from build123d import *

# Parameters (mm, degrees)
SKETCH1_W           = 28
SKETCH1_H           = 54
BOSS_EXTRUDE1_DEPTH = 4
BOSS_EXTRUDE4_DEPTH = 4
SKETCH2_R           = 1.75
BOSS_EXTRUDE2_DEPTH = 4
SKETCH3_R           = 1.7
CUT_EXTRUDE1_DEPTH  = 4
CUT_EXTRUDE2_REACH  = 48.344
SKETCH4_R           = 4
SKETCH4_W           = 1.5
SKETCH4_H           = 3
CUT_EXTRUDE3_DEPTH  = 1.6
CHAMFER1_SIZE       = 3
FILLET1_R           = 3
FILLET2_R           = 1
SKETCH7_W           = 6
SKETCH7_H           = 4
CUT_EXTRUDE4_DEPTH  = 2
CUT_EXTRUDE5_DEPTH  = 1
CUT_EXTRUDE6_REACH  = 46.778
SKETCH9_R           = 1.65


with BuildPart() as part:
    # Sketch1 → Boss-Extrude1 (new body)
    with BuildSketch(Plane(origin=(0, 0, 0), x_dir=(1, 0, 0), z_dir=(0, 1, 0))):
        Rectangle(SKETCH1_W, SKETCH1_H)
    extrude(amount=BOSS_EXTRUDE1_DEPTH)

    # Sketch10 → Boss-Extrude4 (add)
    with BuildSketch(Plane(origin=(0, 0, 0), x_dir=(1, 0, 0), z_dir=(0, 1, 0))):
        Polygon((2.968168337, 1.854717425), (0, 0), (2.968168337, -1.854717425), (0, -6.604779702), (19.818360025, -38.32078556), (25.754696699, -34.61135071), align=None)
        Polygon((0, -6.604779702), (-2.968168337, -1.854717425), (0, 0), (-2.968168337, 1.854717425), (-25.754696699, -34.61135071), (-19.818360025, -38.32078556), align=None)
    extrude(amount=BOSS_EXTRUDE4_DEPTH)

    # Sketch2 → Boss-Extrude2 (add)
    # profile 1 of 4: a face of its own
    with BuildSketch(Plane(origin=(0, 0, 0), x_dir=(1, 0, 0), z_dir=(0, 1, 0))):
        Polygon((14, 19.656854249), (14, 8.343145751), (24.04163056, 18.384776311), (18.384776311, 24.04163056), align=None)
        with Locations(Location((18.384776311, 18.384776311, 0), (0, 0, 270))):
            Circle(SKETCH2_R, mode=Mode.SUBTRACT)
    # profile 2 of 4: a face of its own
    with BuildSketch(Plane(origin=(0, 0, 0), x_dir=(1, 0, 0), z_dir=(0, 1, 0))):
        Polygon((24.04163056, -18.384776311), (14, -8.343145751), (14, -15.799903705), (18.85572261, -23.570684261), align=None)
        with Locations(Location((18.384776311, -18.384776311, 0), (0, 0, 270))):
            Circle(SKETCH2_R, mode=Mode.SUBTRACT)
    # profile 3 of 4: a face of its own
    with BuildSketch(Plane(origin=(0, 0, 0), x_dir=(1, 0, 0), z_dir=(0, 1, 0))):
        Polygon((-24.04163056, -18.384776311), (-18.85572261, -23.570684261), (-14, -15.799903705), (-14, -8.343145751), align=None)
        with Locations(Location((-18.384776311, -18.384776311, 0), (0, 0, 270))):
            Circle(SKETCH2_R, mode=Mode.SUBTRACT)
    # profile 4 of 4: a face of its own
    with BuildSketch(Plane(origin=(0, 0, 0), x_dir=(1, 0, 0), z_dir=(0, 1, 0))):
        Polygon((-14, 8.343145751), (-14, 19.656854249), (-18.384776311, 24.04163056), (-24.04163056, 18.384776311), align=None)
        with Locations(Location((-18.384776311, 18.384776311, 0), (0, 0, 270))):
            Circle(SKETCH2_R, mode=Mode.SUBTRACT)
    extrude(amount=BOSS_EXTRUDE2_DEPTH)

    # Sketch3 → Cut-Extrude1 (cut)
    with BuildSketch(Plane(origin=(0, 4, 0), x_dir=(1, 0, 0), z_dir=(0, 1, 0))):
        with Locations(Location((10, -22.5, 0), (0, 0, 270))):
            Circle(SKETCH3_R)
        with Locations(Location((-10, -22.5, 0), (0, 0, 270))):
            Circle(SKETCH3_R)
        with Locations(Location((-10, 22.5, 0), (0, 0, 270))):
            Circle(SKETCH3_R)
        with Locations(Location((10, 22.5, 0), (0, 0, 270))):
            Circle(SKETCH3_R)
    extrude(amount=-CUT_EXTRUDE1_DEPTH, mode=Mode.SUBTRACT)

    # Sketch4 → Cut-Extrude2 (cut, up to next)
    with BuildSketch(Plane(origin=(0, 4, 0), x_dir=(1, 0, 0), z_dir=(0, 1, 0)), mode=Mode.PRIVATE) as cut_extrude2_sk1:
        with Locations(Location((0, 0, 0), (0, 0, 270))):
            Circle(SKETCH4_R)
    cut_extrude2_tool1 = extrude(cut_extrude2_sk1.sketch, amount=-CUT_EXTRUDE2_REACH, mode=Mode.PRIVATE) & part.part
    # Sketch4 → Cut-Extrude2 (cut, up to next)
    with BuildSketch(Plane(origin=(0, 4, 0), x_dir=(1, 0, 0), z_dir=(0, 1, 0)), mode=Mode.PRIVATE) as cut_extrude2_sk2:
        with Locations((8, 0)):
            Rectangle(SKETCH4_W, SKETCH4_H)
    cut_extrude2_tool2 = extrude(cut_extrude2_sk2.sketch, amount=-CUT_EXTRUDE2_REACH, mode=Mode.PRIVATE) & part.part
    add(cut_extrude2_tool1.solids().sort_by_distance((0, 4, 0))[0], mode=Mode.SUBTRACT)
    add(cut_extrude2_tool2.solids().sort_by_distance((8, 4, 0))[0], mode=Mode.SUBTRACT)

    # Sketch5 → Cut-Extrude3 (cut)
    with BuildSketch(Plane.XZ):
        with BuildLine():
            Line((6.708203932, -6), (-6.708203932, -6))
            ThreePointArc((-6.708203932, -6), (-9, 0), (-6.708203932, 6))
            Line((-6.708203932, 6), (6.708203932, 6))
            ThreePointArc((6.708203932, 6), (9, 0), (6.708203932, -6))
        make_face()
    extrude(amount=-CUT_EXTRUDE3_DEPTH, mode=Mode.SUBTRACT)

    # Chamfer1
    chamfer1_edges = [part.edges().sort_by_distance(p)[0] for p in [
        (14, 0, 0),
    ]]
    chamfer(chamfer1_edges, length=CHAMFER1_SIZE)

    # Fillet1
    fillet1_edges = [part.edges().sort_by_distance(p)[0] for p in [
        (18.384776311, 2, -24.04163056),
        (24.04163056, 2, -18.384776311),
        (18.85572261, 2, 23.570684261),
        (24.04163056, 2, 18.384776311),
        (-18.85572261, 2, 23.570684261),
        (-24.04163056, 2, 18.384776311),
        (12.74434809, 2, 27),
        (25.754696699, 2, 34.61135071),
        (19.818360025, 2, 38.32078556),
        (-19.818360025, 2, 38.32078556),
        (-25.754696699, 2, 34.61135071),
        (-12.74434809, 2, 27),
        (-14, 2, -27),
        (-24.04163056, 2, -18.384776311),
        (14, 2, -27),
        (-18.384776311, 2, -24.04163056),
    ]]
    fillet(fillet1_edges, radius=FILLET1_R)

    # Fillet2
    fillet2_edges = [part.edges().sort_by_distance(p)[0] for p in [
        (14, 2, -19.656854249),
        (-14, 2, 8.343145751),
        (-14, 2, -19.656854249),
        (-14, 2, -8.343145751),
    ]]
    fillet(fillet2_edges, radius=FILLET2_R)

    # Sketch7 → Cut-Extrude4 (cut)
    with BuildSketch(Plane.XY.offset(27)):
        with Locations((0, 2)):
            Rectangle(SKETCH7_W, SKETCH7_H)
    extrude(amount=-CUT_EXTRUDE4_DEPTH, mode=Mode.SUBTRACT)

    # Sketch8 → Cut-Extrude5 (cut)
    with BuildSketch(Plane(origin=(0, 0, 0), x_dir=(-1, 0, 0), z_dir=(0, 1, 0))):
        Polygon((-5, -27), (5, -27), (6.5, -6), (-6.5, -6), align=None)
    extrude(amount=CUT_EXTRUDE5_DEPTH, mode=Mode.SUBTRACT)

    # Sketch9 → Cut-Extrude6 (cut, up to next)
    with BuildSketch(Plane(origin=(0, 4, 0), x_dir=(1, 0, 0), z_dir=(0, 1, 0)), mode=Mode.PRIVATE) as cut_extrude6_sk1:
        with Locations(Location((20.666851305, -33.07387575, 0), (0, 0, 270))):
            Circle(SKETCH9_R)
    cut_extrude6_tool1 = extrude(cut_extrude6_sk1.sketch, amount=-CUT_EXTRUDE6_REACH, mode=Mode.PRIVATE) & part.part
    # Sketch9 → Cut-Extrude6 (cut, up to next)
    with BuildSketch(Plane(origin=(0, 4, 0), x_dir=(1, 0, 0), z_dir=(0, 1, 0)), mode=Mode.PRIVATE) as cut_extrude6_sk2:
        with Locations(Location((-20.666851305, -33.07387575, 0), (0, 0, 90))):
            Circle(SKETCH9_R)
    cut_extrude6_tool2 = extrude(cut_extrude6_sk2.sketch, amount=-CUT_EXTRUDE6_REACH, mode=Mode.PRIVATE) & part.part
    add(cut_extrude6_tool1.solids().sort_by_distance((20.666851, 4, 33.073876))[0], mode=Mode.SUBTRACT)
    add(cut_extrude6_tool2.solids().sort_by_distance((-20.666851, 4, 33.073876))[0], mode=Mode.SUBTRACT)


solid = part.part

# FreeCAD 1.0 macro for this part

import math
import FreeCAD as App
import Part
import Sketcher
Q = App.Units.Quantity


def edges_at(feature, points):
    """Names of the edges that pass closest to the given points."""
    edges = feature.Shape.Edges
    near = lambda p: min(range(len(edges)), key=lambda i: edges[i].distToShape(Part.Vertex(*p))[0])
    return sorted({f"Edge{near(p) + 1}" for p in points})


def add_polygon(sketch, points):
    """Adds a closed chain of lines whose ends are joined by coincident constraints."""
    first, n = sketch.GeometryCount, len(points)
    for a, b in zip(points, points[1:] + points[:1]):
        sketch.addGeometry(Part.LineSegment(App.Vector(*a, 0), App.Vector(*b, 0)), False)
    for i in range(n):
        sketch.addConstraint(Sketcher.Constraint("Coincident", first + i, 2, first + (i + 1) % n, 1))

doc = App.newDocument("Part")
body = doc.addObject("PartDesign::Body", "Body")

# Sketch on XZ plane
sketch1 = body.newObject("Sketcher::SketchObject", "Sketch")
sketch1.AttachmentSupport = (doc.getObject("XZ_Plane"), [""])
sketch1.MapMode = "FlatFace"
add_polygon(sketch1, [(-14, -27), (-14, 27), (14, 27), (14, -27)])  # lines 0-3
sketch1.addConstraint([
    Sketcher.Constraint("Vertical", 0),
    Sketcher.Constraint("Horizontal", 1),
    Sketcher.Constraint("Vertical", 2),
    Sketcher.Constraint("Horizontal", 3),
    Sketcher.Constraint("Symmetric", 0, 2, 2, 2, -1, 1),
    Sketcher.Constraint("DistanceX", 1, 1, 1, 2, 28.0),
    Sketcher.Constraint("DistanceY", 0, 1, 0, 2, 54.0),
])
pad1 = body.newObject("PartDesign::Pad", "Pad")
pad1.Profile = sketch1
pad1.Length = 4
pad1.Reversed = True

# Sketch on XZ plane
sketch2 = body.newObject("Sketcher::SketchObject", "Sketch001")
sketch2.AttachmentSupport = (doc.getObject("XZ_Plane"), [""])
sketch2.MapMode = "FlatFace"
add_polygon(sketch2, [(3, -1.9), (0, 0), (3, 1.9), (0, 6.6), (19.8, 38.3), (25.8, 34.6)])  # lines 0-5
add_polygon(sketch2, [(0, 6.6), (-3, 1.9), (0, 0), (-3, -1.9), (-25.8, 34.6), (-19.8, 38.3)])  # lines 6-11
sketch2.addConstraint([
    Sketcher.Constraint("Coincident", 0, 2, -1, 1),
    Sketcher.Constraint("Coincident", 7, 2, -1, 1),
    Sketcher.Constraint("Coincident", 11, 2, 2, 2),
    Sketcher.Constraint("Symmetric", 5, 2, 6, 2, -1, 1),
    Sketcher.Constraint("Symmetric", 1, 2, 8, 2, -1, 1),
    Sketcher.Constraint("Symmetric", 1, 2, 6, 2, -2),
    Sketcher.Constraint("Symmetric", 4, 2, 9, 2, -2),
    Sketcher.Constraint("Symmetric", 3, 2, 10, 2, -2),
    Sketcher.Constraint("PointOnObject", 2, 2, -2),
    Sketcher.Constraint("Perpendicular", 1, 2),
    Sketcher.Constraint("Perpendicular", 0, 3),
    Sketcher.Constraint("Perpendicular", 3, 4),
    Sketcher.Constraint("Perpendicular", 4, 5),
    Sketcher.Constraint("Angle", 0, Q("148 deg")),
    Sketcher.Constraint("Distance", 4, 7.0),
    Sketcher.Constraint("Distance", 5, 43.0),
])
pad2 = body.newObject("PartDesign::Pad", "Pad001")
pad2.Profile = sketch2
pad2.Length = 4
pad2.Reversed = True

# Sketch on XZ plane
sketch3 = body.newObject("Sketcher::SketchObject", "Sketch002")
sketch3.AttachmentSupport = (doc.getObject("XZ_Plane"), [""])
sketch3.MapMode = "FlatFace"
add_polygon(sketch3, [(14, -19.7), (14, -8.3), (24, -18.4), (18.4, -24)])  # lines 0-3
sketch3.addGeometry(Part.Circle(App.Vector(18.4, -18.4, 0), App.Vector(0, 0, 1), 1.8), False)  # 4
add_polygon(sketch3, [(24, 18.4), (14, 8.3), (14, 15.8), (18.9, 23.6)])  # lines 5-8
sketch3.addGeometry(Part.Circle(App.Vector(18.4, 18.4, 0), App.Vector(0, 0, 1), 1.8), False)  # 9
add_polygon(sketch3, [(-24, 18.4), (-18.9, 23.6), (-14, 15.8), (-14, 8.3)])  # lines 10-13
sketch3.addGeometry(Part.Circle(App.Vector(-18.4, 18.4, 0), App.Vector(0, 0, 1), 1.8), False)  # 14
add_polygon(sketch3, [(-14, -8.3), (-14, -19.7), (-18.4, -24), (-24, -18.4)])  # lines 15-18
sketch3.addGeometry(Part.Circle(App.Vector(-18.4, -18.4, 0), App.Vector(0, 0, 1), 1.8), False)  # 19
sketch3.addConstraint([
    Sketcher.Constraint("Vertical", 0),
    Sketcher.Constraint("Vertical", 6),
    Sketcher.Constraint("Vertical", 12),
    Sketcher.Constraint("Vertical", 15),
    Sketcher.Constraint("Equal", 4, 9),
    Sketcher.Constraint("Equal", 9, 14),
    Sketcher.Constraint("Equal", 14, 19),
    Sketcher.Constraint("Symmetric", 4, 3, 14, 3, -1, 1),
    Sketcher.Constraint("Symmetric", 9, 3, 19, 3, -1, 1),
    Sketcher.Constraint("Symmetric", 0, 2, 12, 2, -1, 1),
    Sketcher.Constraint("Symmetric", 1, 2, 13, 2, -1, 1),
    Sketcher.Constraint("Symmetric", 8, 2, 17, 2, -1, 1),
    Sketcher.Constraint("Symmetric", 5, 2, 18, 2, -1, 1),
    Sketcher.Constraint("Symmetric", 9, 3, 14, 3, -2),
    Sketcher.Constraint("Symmetric", 7, 2, 10, 2, -2),
    Sketcher.Constraint("Symmetric", 6, 2, 11, 2, -2),
    Sketcher.Constraint("Symmetric", 8, 2, 13, 2, -2),
    Sketcher.Constraint("Symmetric", 2, 2, 16, 2, -2),
    Sketcher.Constraint("Perpendicular", 1, 2),
    Sketcher.Constraint("Perpendicular", 2, 3),
    Sketcher.Constraint("Perpendicular", 3, 5),
    Sketcher.Constraint("Perpendicular", 5, 8),
    Sketcher.Constraint("Perpendicular", 8, 10),
    Sketcher.Constraint("Perpendicular", 13, 16),
    Sketcher.Constraint("Horizontal", 19, 3, 1, 2),
    Sketcher.Constraint("Vertical", 9, 3, 2, 2),
    Sketcher.Constraint("Diameter", 4, 3.5),
    Sketcher.Constraint("Angle", 7, Q("58 deg")),
    Sketcher.Constraint("Distance", 2, 8.0),
    Sketcher.Constraint("DistanceX", -1, 1, 0, 2, 14.0),
    Sketcher.Constraint("DistanceY", 3, 2, 5, 2, 28.0),
    Sketcher.Constraint("DistanceX", 14, 3, 7, 2, 37.240499),
    Sketcher.Constraint("Distance", 1, 14.20101),
])
pad3 = body.newObject("PartDesign::Pad", "Pad002")
pad3.Profile = sketch3
pad3.Length = 4
pad3.Reversed = True

# Sketch on XZ plane
sketch4 = body.newObject("Sketcher::SketchObject", "Sketch003")
sketch4.AttachmentSupport = (doc.getObject("XZ_Plane"), [""])
sketch4.MapMode = "FlatFace"
sketch4.AttachmentOffset = App.Placement(App.Vector(0, 0, -4), App.Rotation())
sketch4.addGeometry([
    Part.Circle(App.Vector(10, 22.5, 0), App.Vector(0, 0, 1), 1.7),
    Part.Circle(App.Vector(-10, 22.5, 0), App.Vector(0, 0, 1), 1.7),
    Part.Circle(App.Vector(-10, -22.5, 0), App.Vector(0, 0, 1), 1.7),
    Part.Circle(App.Vector(10, -22.5, 0), App.Vector(0, 0, 1), 1.7),
], False)
sketch4.addConstraint([
    Sketcher.Constraint("Equal", 0, 1),
    Sketcher.Constraint("Equal", 1, 2),
    Sketcher.Constraint("Equal", 2, 3),
    Sketcher.Constraint("Symmetric", 0, 3, 2, 3, -1, 1),
    Sketcher.Constraint("Symmetric", 1, 3, 3, 3, -1, 1),
    Sketcher.Constraint("Symmetric", 0, 3, 1, 3, -2),
    Sketcher.Constraint("Diameter", 0, 3.4),
    Sketcher.Constraint("DistanceX", -1, 1, 0, 3, 10.0),
    Sketcher.Constraint("DistanceY", 2, 3, 1, 3, 45.0),
])
pocket1 = body.newObject("PartDesign::Pocket", "Pocket")
pocket1.Profile = sketch4
pocket1.Length = 4
pocket1.Reversed = True

# Sketch on XZ plane
sketch5 = body.newObject("Sketcher::SketchObject", "Sketch004")
sketch5.AttachmentSupport = (doc.getObject("XZ_Plane"), [""])
sketch5.MapMode = "FlatFace"
sketch5.AttachmentOffset = App.Placement(App.Vector(0, 0, -4), App.Rotation())
sketch5.addGeometry(Part.Circle(App.Vector(0, 0, 0), App.Vector(0, 0, 1), 4), False)
sketch5.addConstraint([
    Sketcher.Constraint("Coincident", 0, 3, -1, 1),
    Sketcher.Constraint("Diameter", 0, 8.0),
])
pocket2 = body.newObject("PartDesign::Pocket", "Pocket001")
pocket2.Profile = sketch5
pocket2.Type = "UpToFirst"
pocket2.Reversed = True

# Sketch on XZ plane
sketch6 = body.newObject("Sketcher::SketchObject", "Sketch005")
sketch6.AttachmentSupport = (doc.getObject("XZ_Plane"), [""])
sketch6.MapMode = "FlatFace"
sketch6.AttachmentOffset = App.Placement(App.Vector(0, 0, -4), App.Rotation())
add_polygon(sketch6, [(7.2, -1.5), (7.2, 1.5), (8.8, 1.5), (8.8, -1.5)])  # lines 0-3
sketch6.addConstraint([
    Sketcher.Constraint("Vertical", 0),
    Sketcher.Constraint("Horizontal", 1),
    Sketcher.Constraint("Vertical", 2),
    Sketcher.Constraint("Horizontal", 3),
    Sketcher.Constraint("DistanceY", 0, 1, 0, 2, 3.0),
    Sketcher.Constraint("DistanceX", 1, 1, 1, 2, 1.5),
    Sketcher.Constraint("DistanceY", -1, 1, 0, 2, 1.5),
    Sketcher.Constraint("DistanceX", -1, 1, 0, 2, 7.25),
])
pocket3 = body.newObject("PartDesign::Pocket", "Pocket002")
pocket3.Profile = sketch6
pocket3.Type = "UpToFirst"
pocket3.Reversed = True

# Sketch on XZ plane
sketch7 = body.newObject("Sketcher::SketchObject", "Sketch006")
sketch7.AttachmentSupport = (doc.getObject("XZ_Plane"), [""])
sketch7.MapMode = "FlatFace"
sketch7.addGeometry([
    Part.LineSegment(App.Vector(-7, -6, 0), App.Vector(7, -6, 0)),
    Part.ArcOfCircle(Part.Circle(App.Vector(0, 0, 0), App.Vector(0, 0, 1), 9), math.radians(-42), math.radians(42)),
    Part.LineSegment(App.Vector(7, 6, 0), App.Vector(-7, 6, 0)),
    Part.ArcOfCircle(Part.Circle(App.Vector(0, 0, 0), App.Vector(0, 0, 1), 9), math.radians(138), math.radians(222)),
], False)
sketch7.addConstraint([
    Sketcher.Constraint("Coincident", 0, 2, 1, 1),
    Sketcher.Constraint("Coincident", 1, 2, 2, 1),
    Sketcher.Constraint("Coincident", 2, 2, 3, 1),
    Sketcher.Constraint("Coincident", 3, 2, 0, 1),
    Sketcher.Constraint("Horizontal", 0),
    Sketcher.Constraint("Horizontal", 2),
    Sketcher.Constraint("Coincident", 1, 3, -1, 1),
    Sketcher.Constraint("Coincident", 3, 3, -1, 1),
    Sketcher.Constraint("Equal", 1, 3),
    Sketcher.Constraint("Vertical", 0, 2, 1, 2),
    Sketcher.Constraint("Radius", 1, 9.0),
    Sketcher.Constraint("DistanceY", 0, 2, -1, 1, 6.0),
])
pocket4 = body.newObject("PartDesign::Pocket", "Pocket003")
pocket4.Profile = sketch7
pocket4.Length = 1.6
doc.recompute()

chamfer = body.newObject("PartDesign::Chamfer", "Chamfer")
chamfer.Base = (pocket4, edges_at(pocket4, [(14, 0, 0)]))
chamfer.Size = 3
doc.recompute()

fillet = body.newObject("PartDesign::Fillet", "Fillet")
fillet.Base = (chamfer, edges_at(chamfer, [
    (18.385, 2, -24.042),
    (24.042, 2, -18.385),
    (18.856, 2, 23.571),
    (24.042, 2, 18.385),
    (-18.856, 2, 23.571),
    (-24.042, 2, 18.385),
    (12.744, 2, 27),
    (25.755, 2, 34.611),
    (19.818, 2, 38.321),
    (-19.818, 2, 38.321),
    (-25.755, 2, 34.611),
    (-12.744, 2, 27),
    (-14, 2, -27),
    (-24.042, 2, -18.385),
    (14, 2, -27),
    (-18.385, 2, -24.042),
]))
fillet.Radius = 3
doc.recompute()

fillet2 = body.newObject("PartDesign::Fillet", "Fillet001")
fillet2.Base = (fillet, edges_at(fillet, [
    (14, 2, -19.657),
    (-14, 2, 8.343),
    (-14, 2, -19.657),
    (-14, 2, -8.343),
]))
fillet2.Radius = 1

# Sketch on XY plane
sketch8 = body.newObject("Sketcher::SketchObject", "Sketch007")
sketch8.AttachmentSupport = (doc.getObject("XY_Plane"), [""])
sketch8.MapMode = "FlatFace"
sketch8.AttachmentOffset = App.Placement(App.Vector(0, 0, 27), App.Rotation())
add_polygon(sketch8, [(-3, 4), (-3, 0), (3, 0), (3, 4)])  # lines 0-3
sketch8.addConstraint([
    Sketcher.Constraint("Vertical", 0),
    Sketcher.Constraint("Horizontal", 1),
    Sketcher.Constraint("Vertical", 2),
    Sketcher.Constraint("Horizontal", 3),
    Sketcher.Constraint("Symmetric", 0, 2, 1, 2, -1, 1),
    Sketcher.Constraint("DistanceX", 1, 1, 1, 2, 6.0),
    Sketcher.Constraint("DistanceY", 0, 2, 0, 1, 4.0),
])
pocket5 = body.newObject("PartDesign::Pocket", "Pocket004")
pocket5.Profile = sketch8
pocket5.Length = 2

# Sketch on XZ plane
sketch9 = body.newObject("Sketcher::SketchObject", "Sketch008")
sketch9.AttachmentSupport = (doc.getObject("XZ_Plane"), [""])
sketch9.MapMode = "FlatFace"
add_polygon(sketch9, [(5, -27), (-5, -27), (-6, -6), (6, -6)])  # lines 0-3
sketch9.addConstraint([
    Sketcher.Constraint("Horizontal", 0),
    Sketcher.Constraint("Horizontal", 2),
    Sketcher.Constraint("Equal", 1, 3),
    Sketcher.Constraint("DistanceX", 0, 2, 0, 1, 10.0),
    Sketcher.Constraint("DistanceX", 2, 1, 2, 2, 13.0),
    Sketcher.Constraint("DistanceX", 0, 2, -1, 1, 5.0),
    Sketcher.Constraint("DistanceY", 0, 2, -1, 1, 27.0),
    Sketcher.Constraint("DistanceY", 1, 2, -1, 1, 6.0),
])
pocket6 = body.newObject("PartDesign::Pocket", "Pocket005")
pocket6.Profile = sketch9
pocket6.Length = 1

# Sketch on XZ plane
sketch10 = body.newObject("Sketcher::SketchObject", "Sketch009")
sketch10.AttachmentSupport = (doc.getObject("XZ_Plane"), [""])
sketch10.MapMode = "FlatFace"
sketch10.AttachmentOffset = App.Placement(App.Vector(0, 0, -4), App.Rotation())
sketch10.addGeometry(Part.Circle(App.Vector(20.7, 33.1, 0), App.Vector(0, 0, 1), 1.6), False)
sketch10.addConstraint([
    Sketcher.Constraint("Diameter", 0, 3.3),
    Sketcher.Constraint("DistanceX", -1, 1, 0, 3, 20.666851),
    Sketcher.Constraint("DistanceY", -1, 1, 0, 3, 33.073876),
])
pocket7 = body.newObject("PartDesign::Pocket", "Pocket006")
pocket7.Profile = sketch10
pocket7.Type = "UpToFirst"
pocket7.Reversed = True

# Sketch on XZ plane
sketch11 = body.newObject("Sketcher::SketchObject", "Sketch010")
sketch11.AttachmentSupport = (doc.getObject("XZ_Plane"), [""])
sketch11.MapMode = "FlatFace"
sketch11.AttachmentOffset = App.Placement(App.Vector(0, 0, -4), App.Rotation())
sketch11.addGeometry(Part.Circle(App.Vector(-20.7, 33.1, 0), App.Vector(0, 0, 1), 1.6), False)
sketch11.addConstraint([
    Sketcher.Constraint("Diameter", 0, 3.3),
    Sketcher.Constraint("DistanceX", 0, 3, -1, 1, 20.666851),
    Sketcher.Constraint("DistanceY", -1, 1, 0, 3, 33.073876),
])
pocket8 = body.newObject("PartDesign::Pocket", "Pocket007")
pocket8.Profile = sketch11
pocket8.Type = "UpToFirst"
pocket8.Reversed = True

doc.recompute()
